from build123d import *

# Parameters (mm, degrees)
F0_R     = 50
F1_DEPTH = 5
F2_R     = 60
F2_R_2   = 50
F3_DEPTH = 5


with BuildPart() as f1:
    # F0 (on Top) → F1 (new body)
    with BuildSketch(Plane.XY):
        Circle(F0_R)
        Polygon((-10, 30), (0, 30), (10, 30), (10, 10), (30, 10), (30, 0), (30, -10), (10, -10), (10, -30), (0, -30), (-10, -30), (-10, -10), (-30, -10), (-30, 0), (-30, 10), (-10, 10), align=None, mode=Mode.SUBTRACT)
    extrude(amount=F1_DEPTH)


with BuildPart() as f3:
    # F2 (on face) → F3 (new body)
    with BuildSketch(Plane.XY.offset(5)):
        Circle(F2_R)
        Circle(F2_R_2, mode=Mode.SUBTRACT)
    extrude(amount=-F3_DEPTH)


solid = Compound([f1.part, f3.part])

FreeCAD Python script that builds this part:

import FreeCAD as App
import Part
import Sketcher
from FreeCAD import Vector
Q = App.Units.Quantity


def add_polygon(sketch, points):
    """Adds a closed chain of lines whose ends are joined by coincident constraints."""
    first, n = sketch.GeometryCount, len(points)
    for a, b in zip(points, points[1:] + points[:1]):
        sketch.addGeometry(Part.LineSegment(App.Vector(*a, 0), App.Vector(*b, 0)), False)
    for i in range(n):
        sketch.addConstraint(Sketcher.Constraint("Coincident", first + i, 2, first + (i + 1) % n, 1))

doc = App.newDocument("Part")
body = doc.addObject("PartDesign::Body", "Body")

sketch1 = body.newObject("Sketcher::SketchObject", "Sketch")
sketch1.AttachmentSupport = (doc.getObject("XY_Plane"), [""])
sketch1.MapMode = "FlatFace"
sketch1.addGeometry(Part.Circle(Vector(0, 0, 0), Vector(0, 0, 1), 50), False)
add_polygon(sketch1, [(-10, 10), (-10, 30), (10, 30), (10, 10), (30, 10), (30, -10), (10, -10), (10, -30), (-10, -30), (-10, -10), (-30, -10), (-30, 10)])
sketch1.addConstraint([
    Sketcher.Constraint("Vertical", 1),
    Sketcher.Constraint("Horizontal", 2),
    Sketcher.Constraint("Vertical", 3),
    Sketcher.Constraint("Horizontal", 4),
    Sketcher.Constraint("Vertical", 5),
    Sketcher.Constraint("Horizontal", 6),
    Sketcher.Constraint("Vertical", 7),
    Sketcher.Constraint("Horizontal", 8),
    Sketcher.Constraint("Vertical", 9),
    Sketcher.Constraint("Horizontal", 10),
    Sketcher.Constraint("Vertical", 11),
    Sketcher.Constraint("Horizontal", 12),
    Sketcher.Constraint("Coincident", 0, 3, -1, 1),
    Sketcher.Constraint("Symmetric", 1, 2, 7, 2, -1, 1),
    Sketcher.Constraint("Symmetric", 3, 2, 9, 2, -1, 1),
    Sketcher.Constraint("Symmetric", 5, 2, 11, 2, -1, 1),
    Sketcher.Constraint("Symmetric", 6, 2, 9, 2, -2),
    Sketcher.Constraint("Equal", 2, 4),
    Sketcher.Constraint("Equal", 12, 1),
    Sketcher.Constraint("Equal", 3, 5),
    Sketcher.Constraint("Diameter", 0, Q("100 mm")),
    Sketcher.Constraint("DistanceX", 2, 1, 2, 2, Q("20 mm")),
])
pad1 = body.newObject("PartDesign::Pad", "Pad")
pad1.Profile = sketch1
pad1.Length = 5
body2 = doc.addObject("PartDesign::Body", "Body001")

sketch2 = body2.newObject("Sketcher::SketchObject", "Sketch001")
sketch2.AttachmentSupport = (doc.getObject("XY_Plane001"), [""])
sketch2.MapMode = "FlatFace"
sketch2.AttachmentOffset = App.Placement(Vector(0, 0, 5), App.Rotation())
sketch2.addGeometry([
    Part.Circle(Vector(0, 0, 0), Vector(0, 0, 1), 60),
    Part.Circle(Vector(0, 0, 0), Vector(0, 0, 1), 50),
], False)
sketch2.addConstraint([
    Sketcher.Constraint("Coincident", 0, 3, -1, 1),
    Sketcher.Constraint("Coincident", 1, 3, -1, 1),
    Sketcher.Constraint("Diameter", 0, Q("120 mm")),
    Sketcher.Constraint("Diameter", 1, Q("100 mm")),
])
pad2 = body2.newObject("PartDesign::Pad", "Pad001")
pad2.Profile = sketch2
pad2.Length = 5
pad2.Reversed = True

doc.recompute()
